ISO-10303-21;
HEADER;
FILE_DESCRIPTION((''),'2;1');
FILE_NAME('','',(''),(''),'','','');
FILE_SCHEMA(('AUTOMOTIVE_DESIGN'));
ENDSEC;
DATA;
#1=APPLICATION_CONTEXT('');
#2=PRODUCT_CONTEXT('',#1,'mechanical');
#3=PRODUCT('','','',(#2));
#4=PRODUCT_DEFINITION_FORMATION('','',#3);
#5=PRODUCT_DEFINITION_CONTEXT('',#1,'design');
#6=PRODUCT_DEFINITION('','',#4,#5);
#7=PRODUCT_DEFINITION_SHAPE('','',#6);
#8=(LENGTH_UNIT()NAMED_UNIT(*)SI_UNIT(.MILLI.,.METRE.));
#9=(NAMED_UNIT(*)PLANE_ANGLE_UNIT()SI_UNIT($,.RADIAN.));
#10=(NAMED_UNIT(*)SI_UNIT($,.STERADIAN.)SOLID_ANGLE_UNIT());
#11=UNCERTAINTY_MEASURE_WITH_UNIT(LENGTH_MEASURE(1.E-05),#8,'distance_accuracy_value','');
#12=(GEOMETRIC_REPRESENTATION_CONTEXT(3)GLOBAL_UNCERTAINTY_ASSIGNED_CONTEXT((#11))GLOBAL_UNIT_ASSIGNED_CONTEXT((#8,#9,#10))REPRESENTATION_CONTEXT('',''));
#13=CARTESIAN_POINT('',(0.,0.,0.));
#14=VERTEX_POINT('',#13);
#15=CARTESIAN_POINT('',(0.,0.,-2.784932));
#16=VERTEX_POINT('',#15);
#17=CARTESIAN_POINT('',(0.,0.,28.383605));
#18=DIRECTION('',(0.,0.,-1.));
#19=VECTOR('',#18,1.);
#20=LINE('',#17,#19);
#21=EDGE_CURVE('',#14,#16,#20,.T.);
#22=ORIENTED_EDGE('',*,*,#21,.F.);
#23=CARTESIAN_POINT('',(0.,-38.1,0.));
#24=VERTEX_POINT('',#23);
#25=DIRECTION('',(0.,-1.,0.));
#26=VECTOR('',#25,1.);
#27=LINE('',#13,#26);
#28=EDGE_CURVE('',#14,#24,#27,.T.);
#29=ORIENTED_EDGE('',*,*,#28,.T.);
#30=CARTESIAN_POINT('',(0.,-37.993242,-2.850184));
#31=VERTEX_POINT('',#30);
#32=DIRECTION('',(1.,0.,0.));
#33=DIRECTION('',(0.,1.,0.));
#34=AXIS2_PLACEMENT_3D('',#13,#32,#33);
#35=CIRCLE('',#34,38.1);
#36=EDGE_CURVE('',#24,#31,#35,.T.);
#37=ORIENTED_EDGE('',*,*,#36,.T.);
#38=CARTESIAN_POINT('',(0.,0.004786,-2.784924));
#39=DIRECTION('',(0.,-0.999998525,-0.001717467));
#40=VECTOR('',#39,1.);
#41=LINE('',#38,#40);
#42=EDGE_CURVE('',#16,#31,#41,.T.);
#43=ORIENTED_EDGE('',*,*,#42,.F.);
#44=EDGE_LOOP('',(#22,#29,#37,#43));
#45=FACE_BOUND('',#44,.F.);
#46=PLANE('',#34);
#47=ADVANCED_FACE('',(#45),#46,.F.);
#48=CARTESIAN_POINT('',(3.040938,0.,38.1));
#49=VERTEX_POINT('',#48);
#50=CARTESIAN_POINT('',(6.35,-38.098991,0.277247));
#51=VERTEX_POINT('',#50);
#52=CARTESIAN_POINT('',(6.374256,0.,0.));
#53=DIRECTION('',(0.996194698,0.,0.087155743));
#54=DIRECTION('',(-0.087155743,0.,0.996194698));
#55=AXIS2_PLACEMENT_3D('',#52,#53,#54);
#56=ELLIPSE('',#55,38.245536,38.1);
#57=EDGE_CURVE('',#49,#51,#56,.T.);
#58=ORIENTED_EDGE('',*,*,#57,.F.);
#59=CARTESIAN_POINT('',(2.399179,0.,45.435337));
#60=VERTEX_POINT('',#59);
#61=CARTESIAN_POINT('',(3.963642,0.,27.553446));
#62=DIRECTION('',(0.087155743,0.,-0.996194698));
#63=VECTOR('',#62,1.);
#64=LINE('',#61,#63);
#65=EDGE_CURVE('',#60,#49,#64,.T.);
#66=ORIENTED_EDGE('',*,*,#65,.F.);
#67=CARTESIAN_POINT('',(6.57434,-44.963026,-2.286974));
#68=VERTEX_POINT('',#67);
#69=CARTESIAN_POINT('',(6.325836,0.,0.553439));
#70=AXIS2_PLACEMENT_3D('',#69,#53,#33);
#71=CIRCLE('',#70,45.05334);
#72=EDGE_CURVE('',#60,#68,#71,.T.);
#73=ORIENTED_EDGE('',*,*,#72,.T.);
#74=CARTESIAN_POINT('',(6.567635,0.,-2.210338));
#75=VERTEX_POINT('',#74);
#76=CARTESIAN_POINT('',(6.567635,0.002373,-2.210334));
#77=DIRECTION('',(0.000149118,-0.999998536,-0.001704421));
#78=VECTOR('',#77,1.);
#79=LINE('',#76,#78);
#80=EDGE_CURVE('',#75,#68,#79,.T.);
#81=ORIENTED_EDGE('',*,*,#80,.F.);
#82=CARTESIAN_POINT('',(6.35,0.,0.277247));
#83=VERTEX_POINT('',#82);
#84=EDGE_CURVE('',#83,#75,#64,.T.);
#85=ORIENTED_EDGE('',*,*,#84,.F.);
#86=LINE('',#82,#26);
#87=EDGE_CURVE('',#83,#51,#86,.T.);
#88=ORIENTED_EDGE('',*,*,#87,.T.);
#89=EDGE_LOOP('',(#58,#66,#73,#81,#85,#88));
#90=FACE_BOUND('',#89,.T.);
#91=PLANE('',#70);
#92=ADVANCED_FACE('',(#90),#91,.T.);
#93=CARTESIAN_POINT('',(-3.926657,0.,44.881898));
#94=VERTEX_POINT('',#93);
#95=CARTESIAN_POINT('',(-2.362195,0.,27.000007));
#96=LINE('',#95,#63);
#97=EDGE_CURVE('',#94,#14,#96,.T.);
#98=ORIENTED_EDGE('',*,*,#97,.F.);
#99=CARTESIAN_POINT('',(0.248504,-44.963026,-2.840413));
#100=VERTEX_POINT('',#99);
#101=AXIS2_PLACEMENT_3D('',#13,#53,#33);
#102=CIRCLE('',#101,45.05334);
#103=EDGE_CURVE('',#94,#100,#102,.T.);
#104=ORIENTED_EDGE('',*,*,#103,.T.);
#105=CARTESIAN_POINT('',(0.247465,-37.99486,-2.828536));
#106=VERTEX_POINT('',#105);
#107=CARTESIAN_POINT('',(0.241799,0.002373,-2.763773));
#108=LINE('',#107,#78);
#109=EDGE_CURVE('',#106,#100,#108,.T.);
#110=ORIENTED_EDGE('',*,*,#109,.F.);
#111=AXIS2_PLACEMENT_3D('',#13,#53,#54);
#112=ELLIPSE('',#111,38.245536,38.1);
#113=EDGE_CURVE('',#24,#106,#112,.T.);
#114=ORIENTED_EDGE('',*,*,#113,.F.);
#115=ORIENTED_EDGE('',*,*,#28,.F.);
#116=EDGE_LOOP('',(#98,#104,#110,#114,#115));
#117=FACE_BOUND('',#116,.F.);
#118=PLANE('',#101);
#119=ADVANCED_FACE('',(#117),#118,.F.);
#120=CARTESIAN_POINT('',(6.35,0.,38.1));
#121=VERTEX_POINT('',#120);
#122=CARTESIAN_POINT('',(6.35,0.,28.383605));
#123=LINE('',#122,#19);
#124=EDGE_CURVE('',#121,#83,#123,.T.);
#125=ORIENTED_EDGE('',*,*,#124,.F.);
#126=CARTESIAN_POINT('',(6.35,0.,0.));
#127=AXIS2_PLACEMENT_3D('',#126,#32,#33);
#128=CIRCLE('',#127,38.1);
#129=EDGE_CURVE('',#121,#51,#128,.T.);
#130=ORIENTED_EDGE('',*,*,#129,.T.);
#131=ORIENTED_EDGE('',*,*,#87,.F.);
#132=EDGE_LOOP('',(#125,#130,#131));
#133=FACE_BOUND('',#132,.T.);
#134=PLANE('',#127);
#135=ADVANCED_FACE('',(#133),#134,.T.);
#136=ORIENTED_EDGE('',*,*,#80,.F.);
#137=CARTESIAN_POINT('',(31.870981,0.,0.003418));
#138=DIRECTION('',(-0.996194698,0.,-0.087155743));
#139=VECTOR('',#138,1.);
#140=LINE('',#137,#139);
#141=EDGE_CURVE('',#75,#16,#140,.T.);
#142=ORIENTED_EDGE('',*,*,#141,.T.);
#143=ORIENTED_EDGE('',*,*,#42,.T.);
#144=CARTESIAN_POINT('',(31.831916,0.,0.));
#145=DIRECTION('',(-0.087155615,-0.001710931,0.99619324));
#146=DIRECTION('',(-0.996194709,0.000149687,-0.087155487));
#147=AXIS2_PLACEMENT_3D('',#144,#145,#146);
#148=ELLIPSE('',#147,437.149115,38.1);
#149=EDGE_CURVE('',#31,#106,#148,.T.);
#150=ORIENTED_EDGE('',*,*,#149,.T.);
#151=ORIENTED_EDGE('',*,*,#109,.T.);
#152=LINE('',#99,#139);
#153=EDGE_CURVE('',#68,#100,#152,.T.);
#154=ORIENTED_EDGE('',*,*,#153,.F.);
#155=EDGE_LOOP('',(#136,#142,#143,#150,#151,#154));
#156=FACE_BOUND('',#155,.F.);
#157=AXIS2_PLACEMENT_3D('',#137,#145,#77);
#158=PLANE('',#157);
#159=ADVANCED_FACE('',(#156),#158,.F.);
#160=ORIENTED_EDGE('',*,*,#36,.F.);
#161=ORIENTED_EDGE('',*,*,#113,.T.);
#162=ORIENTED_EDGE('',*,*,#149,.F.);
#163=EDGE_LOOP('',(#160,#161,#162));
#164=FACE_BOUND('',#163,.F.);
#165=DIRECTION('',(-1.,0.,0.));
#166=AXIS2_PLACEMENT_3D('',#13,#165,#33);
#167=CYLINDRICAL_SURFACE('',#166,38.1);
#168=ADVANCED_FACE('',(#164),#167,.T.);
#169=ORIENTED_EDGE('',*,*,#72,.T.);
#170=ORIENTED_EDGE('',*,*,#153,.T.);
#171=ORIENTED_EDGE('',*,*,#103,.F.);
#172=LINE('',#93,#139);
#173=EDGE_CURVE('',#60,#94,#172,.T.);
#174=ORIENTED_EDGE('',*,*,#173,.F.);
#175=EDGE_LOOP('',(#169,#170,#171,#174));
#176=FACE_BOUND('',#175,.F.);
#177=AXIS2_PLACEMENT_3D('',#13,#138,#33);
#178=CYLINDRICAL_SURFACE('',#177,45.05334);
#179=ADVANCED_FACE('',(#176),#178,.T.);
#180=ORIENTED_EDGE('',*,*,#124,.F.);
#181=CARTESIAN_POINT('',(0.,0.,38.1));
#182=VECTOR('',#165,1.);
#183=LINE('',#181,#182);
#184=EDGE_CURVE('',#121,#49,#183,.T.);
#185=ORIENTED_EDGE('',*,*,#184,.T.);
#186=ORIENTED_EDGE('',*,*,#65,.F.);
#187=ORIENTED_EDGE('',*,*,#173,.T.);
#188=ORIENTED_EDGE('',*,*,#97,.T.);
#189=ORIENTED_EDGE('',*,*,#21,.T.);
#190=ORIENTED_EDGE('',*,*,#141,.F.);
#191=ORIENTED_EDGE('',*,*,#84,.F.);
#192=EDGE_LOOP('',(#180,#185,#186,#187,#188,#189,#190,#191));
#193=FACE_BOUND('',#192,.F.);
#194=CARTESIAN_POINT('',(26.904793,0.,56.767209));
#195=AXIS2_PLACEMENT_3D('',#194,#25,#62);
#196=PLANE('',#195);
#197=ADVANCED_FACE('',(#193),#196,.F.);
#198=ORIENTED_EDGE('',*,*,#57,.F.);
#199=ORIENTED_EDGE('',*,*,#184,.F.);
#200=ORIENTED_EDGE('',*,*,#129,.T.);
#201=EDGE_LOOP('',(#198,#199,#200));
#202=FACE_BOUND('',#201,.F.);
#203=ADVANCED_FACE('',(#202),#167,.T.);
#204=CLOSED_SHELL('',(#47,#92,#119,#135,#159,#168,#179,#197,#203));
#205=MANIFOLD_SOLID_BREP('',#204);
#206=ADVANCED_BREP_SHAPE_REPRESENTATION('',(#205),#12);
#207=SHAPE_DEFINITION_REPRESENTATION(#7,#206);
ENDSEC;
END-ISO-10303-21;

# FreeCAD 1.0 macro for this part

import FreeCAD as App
import Part
import Sketcher
from FreeCAD import Vector
Q = App.Units.Quantity


def add_polygon(sketch, points):
    """Adds a closed chain of lines whose ends are joined by coincident constraints."""
    first, n = sketch.GeometryCount, len(points)
    for a, b in zip(points, points[1:] + points[:1]):
        sketch.addGeometry(Part.LineSegment(App.Vector(*a, 0), App.Vector(*b, 0)), False)
    for i in range(n):
        sketch.addConstraint(Sketcher.Constraint("Coincident", first + i, 2, first + (i + 1) % n, 1))

doc = App.newDocument("Part")
params = doc.addObject("Spreadsheet::Sheet", "Params")
for row, (alias, value) in enumerate([
    ("sketch1_diameter", "3 in"),
    ("pad1_length", "0.25 in"),
    ("pad2_length", "0.25 in"),
    ("pocket1_length", "2 in"),
], start=1):
    params.set(f"A{row}", alias)
    params.set(f"B{row}", "=" + value)
    params.setAlias(f"B{row}", alias)

body = doc.addObject("PartDesign::Body", "Body")

sketch1 = doc.addObject("Sketcher::SketchObject", "Sketch")
body.addObject(sketch1)
sketch1.AttachmentSupport = (doc.YZ_Plane, [""])
sketch1.MapMode = "FlatFace"
sketch1.addGeometry(Part.Circle(Vector(0, 0, 0), Vector(0, 0, 1), 38.1), False)
sketch1.addConstraint(Sketcher.Constraint("Coincident", 0, 3, -1, 1))
sketch1.addConstraint(Sketcher.Constraint("Diameter", 0, Q("3 in")))
sketch1.setExpression("Constraints[1]", "Params.sketch1_diameter")
pad1 = doc.addObject("PartDesign::Pad", "Pad")
body.addObject(pad1)
pad1.Profile = sketch1
pad1.setExpression("Length", "Params.pad1_length")

sketch2 = doc.addObject("Sketcher::SketchObject", "Sketch001")
body.addObject(sketch2)
sketch2.Placement = App.Placement(Vector(0, 0, 0), App.Rotation(Vector(0, 1, 0), Vector(-0.087155743, 0, 0.996194698), Vector(0.996194698, 0, 0.087155743), "ZXY"))
sketch2.addGeometry(Part.Circle(Vector(0, 0, 0), Vector(0, 0, 1), 45.05334), False)
sketch2.addConstraint(Sketcher.Constraint("Coincident", 0, 3, -1, 1))
sketch2.addConstraint(Sketcher.Constraint("Diameter", 0, 90.10668))
pad2 = doc.addObject("PartDesign::Pad", "Pad001")
body.addObject(pad2)
pad2.Profile = sketch2
pad2.setExpression("Length", "Params.pad2_length")

sketch3 = doc.addObject("Sketcher::SketchObject", "Sketch002")
body.addObject(sketch3)
sketch3.Placement = App.Placement(Vector(31.629182, 0, 2.767195), App.Rotation(Vector(0, 1, 0), Vector(-0.087155743, 0, 0.996194698), Vector(0.996194698, 0, 0.087155743), "ZXY"))
add_polygon(sketch3, [(0, 54.206286), (0, -2.774334), (-63.262977, -2.882573), (-87.015092, -54.491758), (75.641774, -57.208031), (68.234712, 54.206286)])
sketch3.addConstraint(Sketcher.Constraint("Vertical", 0))
sketch3.addConstraint(Sketcher.Constraint("Horizontal", 5))
sketch3.addConstraint(Sketcher.Constraint("PointOnObject", 0, 2, -2))
sketch3.addConstraint(Sketcher.Constraint("DistanceX", 5, 2, 5, 1, 68.234712))
sketch3.addConstraint(Sketcher.Constraint("DistanceY", 0, 2, 0, 1, 56.98062))
sketch3.addConstraint(Sketcher.Constraint("Distance", 1, 63.263069))
sketch3.addConstraint(Sketcher.Constraint("DistanceY", 2, 2, -1, 1, 54.491758))
sketch3.addConstraint(Sketcher.Constraint("DistanceY", 3, 2, -1, 1, 57.208031))
sketch3.addConstraint(Sketcher.Constraint("DistanceY", 1, 2, 0, 2, 0.108239))
sketch3.addConstraint(Sketcher.Constraint("DistanceX", 1, 2, 3, 2, 138.90475))
sketch3.addConstraint(Sketcher.Constraint("DistanceY", 3, 2, 1, 2, 54.325458))
sketch3.addConstraint(Sketcher.Constraint("Distance", 2, 56.812595))
pocket1 = doc.addObject("PartDesign::Pocket", "Pocket")
body.addObject(pocket1)
pocket1.Profile = sketch3
pocket1.setExpression("Length", "Params.pocket1_length")

doc.recompute()
